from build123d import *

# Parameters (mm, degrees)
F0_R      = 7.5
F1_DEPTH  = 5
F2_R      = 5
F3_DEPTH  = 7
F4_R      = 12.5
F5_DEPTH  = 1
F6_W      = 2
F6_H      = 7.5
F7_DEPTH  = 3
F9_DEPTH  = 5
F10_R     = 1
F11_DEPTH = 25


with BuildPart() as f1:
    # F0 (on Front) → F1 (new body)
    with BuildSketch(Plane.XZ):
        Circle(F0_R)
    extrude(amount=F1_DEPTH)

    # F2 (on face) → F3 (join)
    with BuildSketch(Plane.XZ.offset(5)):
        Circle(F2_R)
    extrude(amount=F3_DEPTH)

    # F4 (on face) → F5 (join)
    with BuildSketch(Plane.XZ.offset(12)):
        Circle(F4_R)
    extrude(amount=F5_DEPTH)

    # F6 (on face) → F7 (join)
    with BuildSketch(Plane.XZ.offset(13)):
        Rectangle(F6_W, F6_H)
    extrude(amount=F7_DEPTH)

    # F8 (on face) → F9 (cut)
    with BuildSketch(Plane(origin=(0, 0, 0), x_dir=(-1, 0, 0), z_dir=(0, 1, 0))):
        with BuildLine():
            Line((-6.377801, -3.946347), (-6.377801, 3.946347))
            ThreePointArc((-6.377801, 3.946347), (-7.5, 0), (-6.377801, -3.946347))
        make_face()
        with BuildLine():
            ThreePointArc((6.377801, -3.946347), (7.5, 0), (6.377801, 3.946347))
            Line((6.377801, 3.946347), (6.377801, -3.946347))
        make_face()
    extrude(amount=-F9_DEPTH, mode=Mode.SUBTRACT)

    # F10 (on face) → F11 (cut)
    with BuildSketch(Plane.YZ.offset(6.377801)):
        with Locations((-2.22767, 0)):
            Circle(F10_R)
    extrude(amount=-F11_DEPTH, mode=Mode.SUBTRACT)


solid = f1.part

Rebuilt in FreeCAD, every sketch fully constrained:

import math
import FreeCAD as App
import Part
import Sketcher
Q = App.Units.Quantity


def add_polygon(sketch, points):
    """Adds a closed chain of lines whose ends are joined by coincident constraints."""
    first, n = sketch.GeometryCount, len(points)
    for a, b in zip(points, points[1:] + points[:1]):
        sketch.addGeometry(Part.LineSegment(App.Vector(*a, 0), App.Vector(*b, 0)), False)
    for i in range(n):
        sketch.addConstraint(Sketcher.Constraint("Coincident", first + i, 2, first + (i + 1) % n, 1))

doc = App.newDocument("Part")
body = doc.addObject("PartDesign::Body", "Body")

sketch1 = doc.addObject("Sketcher::SketchObject", "Sketch")
body.addObject(sketch1)
sketch1.AttachmentSupport = (doc.XZ_Plane, [""])
sketch1.MapMode = "FlatFace"
sketch1.addGeometry(Part.Circle(App.Vector(0, 0, 0), App.Vector(0, 0, 1), 8), False)
sketch1.addConstraint([
    Sketcher.Constraint("Coincident", 0, 3, -1, 1),
    Sketcher.Constraint("Diameter", 0, Q("15 mm")),
])
pad1 = doc.addObject("PartDesign::Pad", "Pad")
body.addObject(pad1)
pad1.Profile = sketch1
pad1.Length = 5

sketch2 = doc.addObject("Sketcher::SketchObject", "Sketch001")
body.addObject(sketch2)
sketch2.AttachmentSupport = (doc.XZ_Plane, [""])
sketch2.MapMode = "FlatFace"
sketch2.AttachmentOffset = App.Placement(App.Vector(0, 0, 5), App.Rotation())
sketch2.addGeometry(Part.Circle(App.Vector(0, 0, 0), App.Vector(0, 0, 1), 5), False)
sketch2.addConstraint([
    Sketcher.Constraint("Coincident", 0, 3, -1, 1),
    Sketcher.Constraint("Diameter", 0, Q("10 mm")),
])
pad2 = doc.addObject("PartDesign::Pad", "Pad001")
body.addObject(pad2)
pad2.Profile = sketch2
pad2.Length = 7

sketch3 = doc.addObject("Sketcher::SketchObject", "Sketch002")
body.addObject(sketch3)
sketch3.AttachmentSupport = (doc.XZ_Plane, [""])
sketch3.MapMode = "FlatFace"
sketch3.AttachmentOffset = App.Placement(App.Vector(0, 0, 12), App.Rotation())
sketch3.addGeometry(Part.Circle(App.Vector(0, 0, 0), App.Vector(0, 0, 1), 12), False)
sketch3.addConstraint([
    Sketcher.Constraint("Coincident", 0, 3, -1, 1),
    Sketcher.Constraint("Diameter", 0, Q("25 mm")),
])
pad3 = doc.addObject("PartDesign::Pad", "Pad002")
body.addObject(pad3)
pad3.Profile = sketch3
pad3.Length = 1

sketch4 = doc.addObject("Sketcher::SketchObject", "Sketch003")
body.addObject(sketch4)
sketch4.AttachmentSupport = (doc.XZ_Plane, [""])
sketch4.MapMode = "FlatFace"
sketch4.AttachmentOffset = App.Placement(App.Vector(0, 0, 13), App.Rotation())
add_polygon(sketch4, [(-1, 3.8), (-1, -3.8), (1, -3.8), (1, 3.8)])
sketch4.addConstraint([
    Sketcher.Constraint("Vertical", 0),
    Sketcher.Constraint("Horizontal", 1),
    Sketcher.Constraint("Vertical", 2),
    Sketcher.Constraint("Horizontal", 3),
    Sketcher.Constraint("Symmetric", 0, 2, 2, 2, -1, 1),
    Sketcher.Constraint("DistanceX", 1, 1, 1, 2, Q("2 mm")),
    Sketcher.Constraint("DistanceY", 0, 2, 0, 1, Q("7.5 mm")),
])
pad4 = doc.addObject("PartDesign::Pad", "Pad003")
body.addObject(pad4)
pad4.Profile = sketch4
pad4.Length = 3

sketch5 = doc.addObject("Sketcher::SketchObject", "Sketch004")
body.addObject(sketch5)
sketch5.AttachmentSupport = (doc.XZ_Plane, [""])
sketch5.MapMode = "FlatFace"
sketch5.addGeometry([
    Part.LineSegment(App.Vector(6, -4, 0), App.Vector(6, 4, 0)),
    Part.ArcOfCircle(Part.Circle(App.Vector(0, 0, 0), App.Vector(0, 0, 1), 8), math.radians(-32), math.radians(32)),
    Part.ArcOfCircle(Part.Circle(App.Vector(0, 0, 0), App.Vector(0, 0, 1), 8), math.radians(148), math.radians(212)),
    Part.LineSegment(App.Vector(-6, 4, 0), App.Vector(-6, -4, 0)),
], False)
sketch5.addConstraint([
    Sketcher.Constraint("Coincident", 0, 1, 1, 1),
    Sketcher.Constraint("Coincident", 1, 2, 0, 2),
    Sketcher.Constraint("Coincident", 2, 1, 3, 1),
    Sketcher.Constraint("Coincident", 3, 2, 2, 2),
    Sketcher.Constraint("Vertical", 0),
    Sketcher.Constraint("Vertical", 3),
    Sketcher.Constraint("Coincident", 1, 3, -1, 1),
    Sketcher.Constraint("Coincident", 2, 3, -1, 1),
    Sketcher.Constraint("Equal", 1, 2),
    Sketcher.Constraint("Horizontal", 1, 2, 2, 1),
    Sketcher.Constraint("Radius", 1, Q("7.5 mm")),
    Sketcher.Constraint("DistanceX", -1, 1, 0, 1, Q("6.377801 mm")),
])
pocket1 = doc.addObject("PartDesign::Pocket", "Pocket")
body.addObject(pocket1)
pocket1.Profile = sketch5
pocket1.Length = 5
pocket1.Reversed = True

sketch6 = doc.addObject("Sketcher::SketchObject", "Sketch005")
body.addObject(sketch6)
sketch6.AttachmentSupport = (doc.YZ_Plane, [""])
sketch6.MapMode = "FlatFace"
sketch6.AttachmentOffset = App.Placement(App.Vector(0, 0, 6.377801), App.Rotation())
sketch6.addGeometry(Part.Circle(App.Vector(-2.2, 0, 0), App.Vector(0, 0, 1), 1), False)
sketch6.addConstraint([
    Sketcher.Constraint("PointOnObject", 0, 3, -1),
    Sketcher.Constraint("Diameter", 0, Q("2 mm")),
    Sketcher.Constraint("DistanceX", 0, 3, -1, 1, Q("2.22767 mm")),
])
pocket2 = doc.addObject("PartDesign::Pocket", "Pocket001")
body.addObject(pocket2)
pocket2.Profile = sketch6
pocket2.Length = 25

doc.recompute()
